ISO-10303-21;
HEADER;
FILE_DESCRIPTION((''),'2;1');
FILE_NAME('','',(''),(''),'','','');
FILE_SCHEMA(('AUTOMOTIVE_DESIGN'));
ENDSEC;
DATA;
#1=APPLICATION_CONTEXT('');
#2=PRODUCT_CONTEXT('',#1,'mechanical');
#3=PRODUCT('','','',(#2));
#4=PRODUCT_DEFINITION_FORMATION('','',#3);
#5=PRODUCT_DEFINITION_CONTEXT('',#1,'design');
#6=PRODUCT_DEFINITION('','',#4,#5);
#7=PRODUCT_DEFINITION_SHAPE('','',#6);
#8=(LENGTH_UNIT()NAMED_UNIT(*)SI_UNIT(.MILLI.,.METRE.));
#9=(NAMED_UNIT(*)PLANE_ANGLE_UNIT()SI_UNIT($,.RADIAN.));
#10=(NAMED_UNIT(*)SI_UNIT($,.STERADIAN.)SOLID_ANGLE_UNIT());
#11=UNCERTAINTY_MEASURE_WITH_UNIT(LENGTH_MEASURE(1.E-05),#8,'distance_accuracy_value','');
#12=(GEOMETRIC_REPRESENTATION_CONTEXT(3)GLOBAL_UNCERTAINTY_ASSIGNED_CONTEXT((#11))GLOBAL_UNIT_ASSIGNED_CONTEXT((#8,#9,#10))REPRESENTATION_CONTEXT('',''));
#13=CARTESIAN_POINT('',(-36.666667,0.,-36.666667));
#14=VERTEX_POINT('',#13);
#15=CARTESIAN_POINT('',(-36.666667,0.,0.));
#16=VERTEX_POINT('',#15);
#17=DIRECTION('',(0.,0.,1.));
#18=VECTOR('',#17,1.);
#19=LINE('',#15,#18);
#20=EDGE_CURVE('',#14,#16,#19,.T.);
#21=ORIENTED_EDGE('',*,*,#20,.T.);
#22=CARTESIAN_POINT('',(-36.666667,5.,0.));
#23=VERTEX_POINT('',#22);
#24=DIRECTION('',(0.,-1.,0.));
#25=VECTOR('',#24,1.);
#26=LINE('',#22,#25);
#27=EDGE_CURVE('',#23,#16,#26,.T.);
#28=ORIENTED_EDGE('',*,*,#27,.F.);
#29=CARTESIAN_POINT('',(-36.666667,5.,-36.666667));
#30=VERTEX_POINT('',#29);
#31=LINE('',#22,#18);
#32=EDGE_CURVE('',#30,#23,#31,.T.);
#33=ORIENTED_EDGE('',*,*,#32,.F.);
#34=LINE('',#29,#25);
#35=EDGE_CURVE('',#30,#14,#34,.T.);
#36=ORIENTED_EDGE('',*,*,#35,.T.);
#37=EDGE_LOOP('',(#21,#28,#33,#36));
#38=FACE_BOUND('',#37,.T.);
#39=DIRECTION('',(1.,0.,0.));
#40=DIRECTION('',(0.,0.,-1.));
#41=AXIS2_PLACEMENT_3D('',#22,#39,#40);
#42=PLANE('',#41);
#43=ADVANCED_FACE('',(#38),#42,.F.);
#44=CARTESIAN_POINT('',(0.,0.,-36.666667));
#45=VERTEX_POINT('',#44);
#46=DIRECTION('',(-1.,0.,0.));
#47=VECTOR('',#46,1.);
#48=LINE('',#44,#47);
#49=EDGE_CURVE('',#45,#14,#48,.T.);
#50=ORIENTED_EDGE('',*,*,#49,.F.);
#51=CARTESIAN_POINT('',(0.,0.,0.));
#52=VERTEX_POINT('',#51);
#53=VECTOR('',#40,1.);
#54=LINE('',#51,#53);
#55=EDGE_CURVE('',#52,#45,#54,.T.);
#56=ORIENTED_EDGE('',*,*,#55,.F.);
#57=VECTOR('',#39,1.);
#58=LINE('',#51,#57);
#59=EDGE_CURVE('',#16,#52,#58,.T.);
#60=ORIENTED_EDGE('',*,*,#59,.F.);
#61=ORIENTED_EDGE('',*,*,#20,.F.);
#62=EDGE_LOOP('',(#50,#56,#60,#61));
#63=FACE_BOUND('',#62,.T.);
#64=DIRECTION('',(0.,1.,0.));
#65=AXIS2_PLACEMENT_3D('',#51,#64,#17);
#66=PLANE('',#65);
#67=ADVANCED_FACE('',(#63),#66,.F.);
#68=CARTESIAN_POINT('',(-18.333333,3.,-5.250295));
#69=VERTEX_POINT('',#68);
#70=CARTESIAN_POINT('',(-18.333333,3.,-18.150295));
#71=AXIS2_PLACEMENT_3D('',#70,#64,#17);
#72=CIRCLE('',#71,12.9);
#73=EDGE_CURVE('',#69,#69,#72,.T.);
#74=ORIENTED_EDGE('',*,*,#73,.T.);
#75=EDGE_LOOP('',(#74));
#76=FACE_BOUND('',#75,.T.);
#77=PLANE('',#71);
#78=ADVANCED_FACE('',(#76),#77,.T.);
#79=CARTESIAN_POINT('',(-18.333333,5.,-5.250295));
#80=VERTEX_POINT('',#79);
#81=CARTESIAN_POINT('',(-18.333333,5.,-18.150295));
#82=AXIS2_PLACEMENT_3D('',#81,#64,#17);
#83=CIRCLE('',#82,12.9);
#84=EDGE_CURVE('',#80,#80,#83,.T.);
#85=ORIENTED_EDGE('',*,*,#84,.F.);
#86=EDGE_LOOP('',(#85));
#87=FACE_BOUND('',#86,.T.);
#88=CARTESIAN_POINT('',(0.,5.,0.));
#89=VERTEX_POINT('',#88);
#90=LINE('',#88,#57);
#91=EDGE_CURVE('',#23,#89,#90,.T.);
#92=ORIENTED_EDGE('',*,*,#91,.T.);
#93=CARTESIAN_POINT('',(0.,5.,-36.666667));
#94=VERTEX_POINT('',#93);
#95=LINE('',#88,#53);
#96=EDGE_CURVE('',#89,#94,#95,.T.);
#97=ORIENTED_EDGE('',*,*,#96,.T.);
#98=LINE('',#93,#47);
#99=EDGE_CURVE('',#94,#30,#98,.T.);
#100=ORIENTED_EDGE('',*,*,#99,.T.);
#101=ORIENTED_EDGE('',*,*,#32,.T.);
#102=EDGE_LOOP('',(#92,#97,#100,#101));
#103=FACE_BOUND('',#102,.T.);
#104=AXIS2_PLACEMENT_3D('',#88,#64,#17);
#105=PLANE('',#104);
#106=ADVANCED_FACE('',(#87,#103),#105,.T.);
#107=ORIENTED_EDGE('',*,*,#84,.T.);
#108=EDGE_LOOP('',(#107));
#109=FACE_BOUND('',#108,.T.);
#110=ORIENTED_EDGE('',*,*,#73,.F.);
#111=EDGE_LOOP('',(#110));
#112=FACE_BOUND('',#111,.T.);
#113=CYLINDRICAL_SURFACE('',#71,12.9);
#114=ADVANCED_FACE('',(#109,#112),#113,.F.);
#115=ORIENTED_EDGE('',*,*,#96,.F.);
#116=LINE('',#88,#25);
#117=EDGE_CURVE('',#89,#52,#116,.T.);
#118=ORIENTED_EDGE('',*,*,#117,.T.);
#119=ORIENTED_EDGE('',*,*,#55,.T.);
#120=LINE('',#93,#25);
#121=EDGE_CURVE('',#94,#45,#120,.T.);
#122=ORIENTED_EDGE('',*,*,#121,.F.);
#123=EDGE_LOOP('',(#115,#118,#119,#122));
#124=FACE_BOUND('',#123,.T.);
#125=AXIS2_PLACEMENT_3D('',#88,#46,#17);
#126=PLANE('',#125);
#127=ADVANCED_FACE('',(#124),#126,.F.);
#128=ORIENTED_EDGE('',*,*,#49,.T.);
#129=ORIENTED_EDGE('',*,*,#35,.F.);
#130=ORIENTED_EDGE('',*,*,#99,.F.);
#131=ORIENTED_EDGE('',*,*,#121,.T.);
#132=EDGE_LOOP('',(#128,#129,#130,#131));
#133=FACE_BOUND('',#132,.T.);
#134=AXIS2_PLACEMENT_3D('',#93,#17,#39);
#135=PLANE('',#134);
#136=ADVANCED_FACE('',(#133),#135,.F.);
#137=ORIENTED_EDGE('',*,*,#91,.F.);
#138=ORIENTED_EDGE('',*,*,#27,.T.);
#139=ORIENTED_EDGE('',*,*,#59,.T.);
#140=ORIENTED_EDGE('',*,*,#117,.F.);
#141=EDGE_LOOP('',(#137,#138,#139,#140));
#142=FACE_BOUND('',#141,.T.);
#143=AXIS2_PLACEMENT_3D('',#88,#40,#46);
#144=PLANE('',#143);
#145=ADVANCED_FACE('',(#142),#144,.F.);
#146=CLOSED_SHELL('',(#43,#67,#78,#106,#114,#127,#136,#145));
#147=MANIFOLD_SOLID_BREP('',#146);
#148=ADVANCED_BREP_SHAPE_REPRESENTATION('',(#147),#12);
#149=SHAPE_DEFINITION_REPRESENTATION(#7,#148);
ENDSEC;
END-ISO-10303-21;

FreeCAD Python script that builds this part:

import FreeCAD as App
import Part
import Sketcher

V = App.Vector


def add_polygon(sketch, points):
    """Adds a closed chain of lines whose ends are joined by coincident constraints."""
    first, n = sketch.GeometryCount, len(points)
    for a, b in zip(points, points[1:] + points[:1]):
        sketch.addGeometry(Part.LineSegment(App.Vector(*a, 0), App.Vector(*b, 0)), False)
    for i in range(n):
        sketch.addConstraint(Sketcher.Constraint("Coincident", first + i, 2, first + (i + 1) % n, 1))

doc = App.newDocument("Part")
params = doc.addObject("Spreadsheet::Sheet", "Params")
for row, (alias, value) in enumerate([
    ("pad1_length", "5 mm"),
    ("sketch2_diameter", "25.8 mm"),
    ("pocket1_length", "2 mm"),
], start=1):
    params.set(f"A{row}", alias)
    params.set(f"B{row}", "=" + value)
    params.setAlias(f"B{row}", alias)

body = doc.addObject("PartDesign::Body", "Body")

# Sketch on XZ plane
sketch1 = doc.addObject("Sketcher::SketchObject", "Sketch")
body.addObject(sketch1)
sketch1.AttachmentSupport = (doc.XZ_Plane, [""])
sketch1.MapMode = "FlatFace"
add_polygon(sketch1, [(-37, -37), (-37, 0), (0, 0), (0, -37)])  # lines 0-3
sketch1.addConstraint(Sketcher.Constraint("Vertical", 0))
sketch1.addConstraint(Sketcher.Constraint("Horizontal", 1))
sketch1.addConstraint(Sketcher.Constraint("Vertical", 2))
sketch1.addConstraint(Sketcher.Constraint("Horizontal", 3))
sketch1.addConstraint(Sketcher.Constraint("Coincident", 1, 2, -1, 1))
sketch1.addConstraint(Sketcher.Constraint("Equal", 3, 0))
sketch1.addConstraint(Sketcher.Constraint("DistanceX", 1, 1, 1, 2, 36.666667))
pad1 = doc.addObject("PartDesign::Pad", "Pad")
body.addObject(pad1)
pad1.Profile = sketch1
pad1.setExpression("Length", "Params.pad1_length")
pad1.Reversed = True

# Sketch on XZ plane
sketch2 = doc.addObject("Sketcher::SketchObject", "Sketch001")
body.addObject(sketch2)
sketch2.AttachmentSupport = (doc.XZ_Plane, [""])
sketch2.MapMode = "FlatFace"
sketch2.AttachmentOffset = App.Placement(V(0, 0, -5), App.Rotation())
sketch2.addGeometry(Part.Circle(V(-18, -18, 0), V(0, 0, 1), 13), False)
sketch2.addConstraint(Sketcher.Constraint("Diameter", 0, 25.8))
sketch2.addConstraint(Sketcher.Constraint("DistanceX", 0, 3, -1, 1, 18.333333))
sketch2.addConstraint(Sketcher.Constraint("DistanceY", 0, 3, -1, 1, 18.150295))
sketch2.setExpression("Constraints[0]", "Params.sketch2_diameter")
pocket1 = doc.addObject("PartDesign::Pocket", "Pocket")
body.addObject(pocket1)
pocket1.Profile = sketch2
pocket1.setExpression("Length", "Params.pocket1_length")
pocket1.Reversed = True

doc.recompute()
